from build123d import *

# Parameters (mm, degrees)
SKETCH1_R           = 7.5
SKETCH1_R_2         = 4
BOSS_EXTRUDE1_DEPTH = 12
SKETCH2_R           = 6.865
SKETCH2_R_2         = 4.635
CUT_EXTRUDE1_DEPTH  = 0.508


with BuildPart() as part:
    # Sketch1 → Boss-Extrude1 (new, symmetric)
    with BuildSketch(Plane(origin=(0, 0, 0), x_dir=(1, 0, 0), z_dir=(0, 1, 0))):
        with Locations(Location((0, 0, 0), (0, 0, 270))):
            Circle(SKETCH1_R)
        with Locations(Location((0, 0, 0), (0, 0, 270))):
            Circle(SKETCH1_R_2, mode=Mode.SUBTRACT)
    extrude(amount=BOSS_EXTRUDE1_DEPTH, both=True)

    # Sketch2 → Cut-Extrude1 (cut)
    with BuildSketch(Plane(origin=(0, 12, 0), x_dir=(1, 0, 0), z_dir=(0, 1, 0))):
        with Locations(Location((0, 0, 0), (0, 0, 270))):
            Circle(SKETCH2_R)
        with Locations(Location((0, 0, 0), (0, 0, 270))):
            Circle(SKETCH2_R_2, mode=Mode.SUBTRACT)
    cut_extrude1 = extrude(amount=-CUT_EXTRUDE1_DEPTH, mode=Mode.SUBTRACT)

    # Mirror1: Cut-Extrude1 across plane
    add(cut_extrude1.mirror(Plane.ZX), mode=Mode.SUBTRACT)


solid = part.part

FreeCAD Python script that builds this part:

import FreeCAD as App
import Part
import Sketcher

doc = App.newDocument("Part")
params = doc.addObject("Spreadsheet::Sheet", "Params")
for row, (alias, value) in enumerate([
    ("sketch1_diameter", "15 mm"),
    ("sketch1_diameter2", "8 mm"),
    ("pad1_length", "24 mm"),
    ("sketch2_diameter", "13.73 mm"),
    ("sketch2_diameter2", "9.27 mm"),
    ("pocket1_length", "0.508 mm"),
], start=1):
    params.set(f"A{row}", alias)
    params.set(f"B{row}", "=" + value)
    params.setAlias(f"B{row}", alias)

body = doc.addObject("PartDesign::Body", "Body")

sketch1 = doc.addObject("Sketcher::SketchObject", "Sketch")
body.addObject(sketch1)
sketch1.AttachmentSupport = (doc.XZ_Plane, [""])
sketch1.MapMode = "FlatFace"
sketch1.addGeometry([
    Part.Circle(App.Vector(0, 0, 0), App.Vector(0, 0, 1), 7.5),
    Part.Circle(App.Vector(0, 0, 0), App.Vector(0, 0, 1), 4),
], False)
sketch1.addConstraint([
    Sketcher.Constraint("Coincident", 0, 3, -1, 1),
    Sketcher.Constraint("Coincident", 1, 3, -1, 1),
    Sketcher.Constraint("Diameter", 0, 15.0),
    Sketcher.Constraint("Diameter", 1, 8.0),
])
sketch1.setExpression("Constraints[2]", "Params.sketch1_diameter")
sketch1.setExpression("Constraints[3]", "Params.sketch1_diameter2")
pad1 = doc.addObject("PartDesign::Pad", "Pad")
body.addObject(pad1)
pad1.Profile = sketch1
pad1.setExpression("Length", "Params.pad1_length")
pad1.Midplane = True

sketch2 = doc.addObject("Sketcher::SketchObject", "Sketch001")
body.addObject(sketch2)
sketch2.AttachmentSupport = (doc.XZ_Plane, [""])
sketch2.MapMode = "FlatFace"
sketch2.AttachmentOffset = App.Placement(App.Vector(0, 0, -12), App.Rotation())
sketch2.addGeometry([
    Part.Circle(App.Vector(0, 0, 0), App.Vector(0, 0, 1), 6.9),
    Part.Circle(App.Vector(0, 0, 0), App.Vector(0, 0, 1), 4.6),
], False)
sketch2.addConstraint([
    Sketcher.Constraint("Coincident", 0, 3, -1, 1),
    Sketcher.Constraint("Coincident", 1, 3, -1, 1),
    Sketcher.Constraint("Diameter", 0, 13.73),
    Sketcher.Constraint("Diameter", 1, 9.27),
])
sketch2.setExpression("Constraints[2]", "Params.sketch2_diameter")
sketch2.setExpression("Constraints[3]", "Params.sketch2_diameter2")
pocket1 = doc.addObject("PartDesign::Pocket", "Pocket")
body.addObject(pocket1)
pocket1.Profile = sketch2
pocket1.setExpression("Length", "Params.pocket1_length")
pocket1.Reversed = True
doc.recompute()

mirrored = doc.addObject("PartDesign::Mirrored", "Mirrored")
body.addObject(mirrored)
mirrored.Originals = [pocket1]
mirrored.MirrorPlane = (doc.XZ_Plane, [""])
body.Tip = mirrored

doc.recompute()
